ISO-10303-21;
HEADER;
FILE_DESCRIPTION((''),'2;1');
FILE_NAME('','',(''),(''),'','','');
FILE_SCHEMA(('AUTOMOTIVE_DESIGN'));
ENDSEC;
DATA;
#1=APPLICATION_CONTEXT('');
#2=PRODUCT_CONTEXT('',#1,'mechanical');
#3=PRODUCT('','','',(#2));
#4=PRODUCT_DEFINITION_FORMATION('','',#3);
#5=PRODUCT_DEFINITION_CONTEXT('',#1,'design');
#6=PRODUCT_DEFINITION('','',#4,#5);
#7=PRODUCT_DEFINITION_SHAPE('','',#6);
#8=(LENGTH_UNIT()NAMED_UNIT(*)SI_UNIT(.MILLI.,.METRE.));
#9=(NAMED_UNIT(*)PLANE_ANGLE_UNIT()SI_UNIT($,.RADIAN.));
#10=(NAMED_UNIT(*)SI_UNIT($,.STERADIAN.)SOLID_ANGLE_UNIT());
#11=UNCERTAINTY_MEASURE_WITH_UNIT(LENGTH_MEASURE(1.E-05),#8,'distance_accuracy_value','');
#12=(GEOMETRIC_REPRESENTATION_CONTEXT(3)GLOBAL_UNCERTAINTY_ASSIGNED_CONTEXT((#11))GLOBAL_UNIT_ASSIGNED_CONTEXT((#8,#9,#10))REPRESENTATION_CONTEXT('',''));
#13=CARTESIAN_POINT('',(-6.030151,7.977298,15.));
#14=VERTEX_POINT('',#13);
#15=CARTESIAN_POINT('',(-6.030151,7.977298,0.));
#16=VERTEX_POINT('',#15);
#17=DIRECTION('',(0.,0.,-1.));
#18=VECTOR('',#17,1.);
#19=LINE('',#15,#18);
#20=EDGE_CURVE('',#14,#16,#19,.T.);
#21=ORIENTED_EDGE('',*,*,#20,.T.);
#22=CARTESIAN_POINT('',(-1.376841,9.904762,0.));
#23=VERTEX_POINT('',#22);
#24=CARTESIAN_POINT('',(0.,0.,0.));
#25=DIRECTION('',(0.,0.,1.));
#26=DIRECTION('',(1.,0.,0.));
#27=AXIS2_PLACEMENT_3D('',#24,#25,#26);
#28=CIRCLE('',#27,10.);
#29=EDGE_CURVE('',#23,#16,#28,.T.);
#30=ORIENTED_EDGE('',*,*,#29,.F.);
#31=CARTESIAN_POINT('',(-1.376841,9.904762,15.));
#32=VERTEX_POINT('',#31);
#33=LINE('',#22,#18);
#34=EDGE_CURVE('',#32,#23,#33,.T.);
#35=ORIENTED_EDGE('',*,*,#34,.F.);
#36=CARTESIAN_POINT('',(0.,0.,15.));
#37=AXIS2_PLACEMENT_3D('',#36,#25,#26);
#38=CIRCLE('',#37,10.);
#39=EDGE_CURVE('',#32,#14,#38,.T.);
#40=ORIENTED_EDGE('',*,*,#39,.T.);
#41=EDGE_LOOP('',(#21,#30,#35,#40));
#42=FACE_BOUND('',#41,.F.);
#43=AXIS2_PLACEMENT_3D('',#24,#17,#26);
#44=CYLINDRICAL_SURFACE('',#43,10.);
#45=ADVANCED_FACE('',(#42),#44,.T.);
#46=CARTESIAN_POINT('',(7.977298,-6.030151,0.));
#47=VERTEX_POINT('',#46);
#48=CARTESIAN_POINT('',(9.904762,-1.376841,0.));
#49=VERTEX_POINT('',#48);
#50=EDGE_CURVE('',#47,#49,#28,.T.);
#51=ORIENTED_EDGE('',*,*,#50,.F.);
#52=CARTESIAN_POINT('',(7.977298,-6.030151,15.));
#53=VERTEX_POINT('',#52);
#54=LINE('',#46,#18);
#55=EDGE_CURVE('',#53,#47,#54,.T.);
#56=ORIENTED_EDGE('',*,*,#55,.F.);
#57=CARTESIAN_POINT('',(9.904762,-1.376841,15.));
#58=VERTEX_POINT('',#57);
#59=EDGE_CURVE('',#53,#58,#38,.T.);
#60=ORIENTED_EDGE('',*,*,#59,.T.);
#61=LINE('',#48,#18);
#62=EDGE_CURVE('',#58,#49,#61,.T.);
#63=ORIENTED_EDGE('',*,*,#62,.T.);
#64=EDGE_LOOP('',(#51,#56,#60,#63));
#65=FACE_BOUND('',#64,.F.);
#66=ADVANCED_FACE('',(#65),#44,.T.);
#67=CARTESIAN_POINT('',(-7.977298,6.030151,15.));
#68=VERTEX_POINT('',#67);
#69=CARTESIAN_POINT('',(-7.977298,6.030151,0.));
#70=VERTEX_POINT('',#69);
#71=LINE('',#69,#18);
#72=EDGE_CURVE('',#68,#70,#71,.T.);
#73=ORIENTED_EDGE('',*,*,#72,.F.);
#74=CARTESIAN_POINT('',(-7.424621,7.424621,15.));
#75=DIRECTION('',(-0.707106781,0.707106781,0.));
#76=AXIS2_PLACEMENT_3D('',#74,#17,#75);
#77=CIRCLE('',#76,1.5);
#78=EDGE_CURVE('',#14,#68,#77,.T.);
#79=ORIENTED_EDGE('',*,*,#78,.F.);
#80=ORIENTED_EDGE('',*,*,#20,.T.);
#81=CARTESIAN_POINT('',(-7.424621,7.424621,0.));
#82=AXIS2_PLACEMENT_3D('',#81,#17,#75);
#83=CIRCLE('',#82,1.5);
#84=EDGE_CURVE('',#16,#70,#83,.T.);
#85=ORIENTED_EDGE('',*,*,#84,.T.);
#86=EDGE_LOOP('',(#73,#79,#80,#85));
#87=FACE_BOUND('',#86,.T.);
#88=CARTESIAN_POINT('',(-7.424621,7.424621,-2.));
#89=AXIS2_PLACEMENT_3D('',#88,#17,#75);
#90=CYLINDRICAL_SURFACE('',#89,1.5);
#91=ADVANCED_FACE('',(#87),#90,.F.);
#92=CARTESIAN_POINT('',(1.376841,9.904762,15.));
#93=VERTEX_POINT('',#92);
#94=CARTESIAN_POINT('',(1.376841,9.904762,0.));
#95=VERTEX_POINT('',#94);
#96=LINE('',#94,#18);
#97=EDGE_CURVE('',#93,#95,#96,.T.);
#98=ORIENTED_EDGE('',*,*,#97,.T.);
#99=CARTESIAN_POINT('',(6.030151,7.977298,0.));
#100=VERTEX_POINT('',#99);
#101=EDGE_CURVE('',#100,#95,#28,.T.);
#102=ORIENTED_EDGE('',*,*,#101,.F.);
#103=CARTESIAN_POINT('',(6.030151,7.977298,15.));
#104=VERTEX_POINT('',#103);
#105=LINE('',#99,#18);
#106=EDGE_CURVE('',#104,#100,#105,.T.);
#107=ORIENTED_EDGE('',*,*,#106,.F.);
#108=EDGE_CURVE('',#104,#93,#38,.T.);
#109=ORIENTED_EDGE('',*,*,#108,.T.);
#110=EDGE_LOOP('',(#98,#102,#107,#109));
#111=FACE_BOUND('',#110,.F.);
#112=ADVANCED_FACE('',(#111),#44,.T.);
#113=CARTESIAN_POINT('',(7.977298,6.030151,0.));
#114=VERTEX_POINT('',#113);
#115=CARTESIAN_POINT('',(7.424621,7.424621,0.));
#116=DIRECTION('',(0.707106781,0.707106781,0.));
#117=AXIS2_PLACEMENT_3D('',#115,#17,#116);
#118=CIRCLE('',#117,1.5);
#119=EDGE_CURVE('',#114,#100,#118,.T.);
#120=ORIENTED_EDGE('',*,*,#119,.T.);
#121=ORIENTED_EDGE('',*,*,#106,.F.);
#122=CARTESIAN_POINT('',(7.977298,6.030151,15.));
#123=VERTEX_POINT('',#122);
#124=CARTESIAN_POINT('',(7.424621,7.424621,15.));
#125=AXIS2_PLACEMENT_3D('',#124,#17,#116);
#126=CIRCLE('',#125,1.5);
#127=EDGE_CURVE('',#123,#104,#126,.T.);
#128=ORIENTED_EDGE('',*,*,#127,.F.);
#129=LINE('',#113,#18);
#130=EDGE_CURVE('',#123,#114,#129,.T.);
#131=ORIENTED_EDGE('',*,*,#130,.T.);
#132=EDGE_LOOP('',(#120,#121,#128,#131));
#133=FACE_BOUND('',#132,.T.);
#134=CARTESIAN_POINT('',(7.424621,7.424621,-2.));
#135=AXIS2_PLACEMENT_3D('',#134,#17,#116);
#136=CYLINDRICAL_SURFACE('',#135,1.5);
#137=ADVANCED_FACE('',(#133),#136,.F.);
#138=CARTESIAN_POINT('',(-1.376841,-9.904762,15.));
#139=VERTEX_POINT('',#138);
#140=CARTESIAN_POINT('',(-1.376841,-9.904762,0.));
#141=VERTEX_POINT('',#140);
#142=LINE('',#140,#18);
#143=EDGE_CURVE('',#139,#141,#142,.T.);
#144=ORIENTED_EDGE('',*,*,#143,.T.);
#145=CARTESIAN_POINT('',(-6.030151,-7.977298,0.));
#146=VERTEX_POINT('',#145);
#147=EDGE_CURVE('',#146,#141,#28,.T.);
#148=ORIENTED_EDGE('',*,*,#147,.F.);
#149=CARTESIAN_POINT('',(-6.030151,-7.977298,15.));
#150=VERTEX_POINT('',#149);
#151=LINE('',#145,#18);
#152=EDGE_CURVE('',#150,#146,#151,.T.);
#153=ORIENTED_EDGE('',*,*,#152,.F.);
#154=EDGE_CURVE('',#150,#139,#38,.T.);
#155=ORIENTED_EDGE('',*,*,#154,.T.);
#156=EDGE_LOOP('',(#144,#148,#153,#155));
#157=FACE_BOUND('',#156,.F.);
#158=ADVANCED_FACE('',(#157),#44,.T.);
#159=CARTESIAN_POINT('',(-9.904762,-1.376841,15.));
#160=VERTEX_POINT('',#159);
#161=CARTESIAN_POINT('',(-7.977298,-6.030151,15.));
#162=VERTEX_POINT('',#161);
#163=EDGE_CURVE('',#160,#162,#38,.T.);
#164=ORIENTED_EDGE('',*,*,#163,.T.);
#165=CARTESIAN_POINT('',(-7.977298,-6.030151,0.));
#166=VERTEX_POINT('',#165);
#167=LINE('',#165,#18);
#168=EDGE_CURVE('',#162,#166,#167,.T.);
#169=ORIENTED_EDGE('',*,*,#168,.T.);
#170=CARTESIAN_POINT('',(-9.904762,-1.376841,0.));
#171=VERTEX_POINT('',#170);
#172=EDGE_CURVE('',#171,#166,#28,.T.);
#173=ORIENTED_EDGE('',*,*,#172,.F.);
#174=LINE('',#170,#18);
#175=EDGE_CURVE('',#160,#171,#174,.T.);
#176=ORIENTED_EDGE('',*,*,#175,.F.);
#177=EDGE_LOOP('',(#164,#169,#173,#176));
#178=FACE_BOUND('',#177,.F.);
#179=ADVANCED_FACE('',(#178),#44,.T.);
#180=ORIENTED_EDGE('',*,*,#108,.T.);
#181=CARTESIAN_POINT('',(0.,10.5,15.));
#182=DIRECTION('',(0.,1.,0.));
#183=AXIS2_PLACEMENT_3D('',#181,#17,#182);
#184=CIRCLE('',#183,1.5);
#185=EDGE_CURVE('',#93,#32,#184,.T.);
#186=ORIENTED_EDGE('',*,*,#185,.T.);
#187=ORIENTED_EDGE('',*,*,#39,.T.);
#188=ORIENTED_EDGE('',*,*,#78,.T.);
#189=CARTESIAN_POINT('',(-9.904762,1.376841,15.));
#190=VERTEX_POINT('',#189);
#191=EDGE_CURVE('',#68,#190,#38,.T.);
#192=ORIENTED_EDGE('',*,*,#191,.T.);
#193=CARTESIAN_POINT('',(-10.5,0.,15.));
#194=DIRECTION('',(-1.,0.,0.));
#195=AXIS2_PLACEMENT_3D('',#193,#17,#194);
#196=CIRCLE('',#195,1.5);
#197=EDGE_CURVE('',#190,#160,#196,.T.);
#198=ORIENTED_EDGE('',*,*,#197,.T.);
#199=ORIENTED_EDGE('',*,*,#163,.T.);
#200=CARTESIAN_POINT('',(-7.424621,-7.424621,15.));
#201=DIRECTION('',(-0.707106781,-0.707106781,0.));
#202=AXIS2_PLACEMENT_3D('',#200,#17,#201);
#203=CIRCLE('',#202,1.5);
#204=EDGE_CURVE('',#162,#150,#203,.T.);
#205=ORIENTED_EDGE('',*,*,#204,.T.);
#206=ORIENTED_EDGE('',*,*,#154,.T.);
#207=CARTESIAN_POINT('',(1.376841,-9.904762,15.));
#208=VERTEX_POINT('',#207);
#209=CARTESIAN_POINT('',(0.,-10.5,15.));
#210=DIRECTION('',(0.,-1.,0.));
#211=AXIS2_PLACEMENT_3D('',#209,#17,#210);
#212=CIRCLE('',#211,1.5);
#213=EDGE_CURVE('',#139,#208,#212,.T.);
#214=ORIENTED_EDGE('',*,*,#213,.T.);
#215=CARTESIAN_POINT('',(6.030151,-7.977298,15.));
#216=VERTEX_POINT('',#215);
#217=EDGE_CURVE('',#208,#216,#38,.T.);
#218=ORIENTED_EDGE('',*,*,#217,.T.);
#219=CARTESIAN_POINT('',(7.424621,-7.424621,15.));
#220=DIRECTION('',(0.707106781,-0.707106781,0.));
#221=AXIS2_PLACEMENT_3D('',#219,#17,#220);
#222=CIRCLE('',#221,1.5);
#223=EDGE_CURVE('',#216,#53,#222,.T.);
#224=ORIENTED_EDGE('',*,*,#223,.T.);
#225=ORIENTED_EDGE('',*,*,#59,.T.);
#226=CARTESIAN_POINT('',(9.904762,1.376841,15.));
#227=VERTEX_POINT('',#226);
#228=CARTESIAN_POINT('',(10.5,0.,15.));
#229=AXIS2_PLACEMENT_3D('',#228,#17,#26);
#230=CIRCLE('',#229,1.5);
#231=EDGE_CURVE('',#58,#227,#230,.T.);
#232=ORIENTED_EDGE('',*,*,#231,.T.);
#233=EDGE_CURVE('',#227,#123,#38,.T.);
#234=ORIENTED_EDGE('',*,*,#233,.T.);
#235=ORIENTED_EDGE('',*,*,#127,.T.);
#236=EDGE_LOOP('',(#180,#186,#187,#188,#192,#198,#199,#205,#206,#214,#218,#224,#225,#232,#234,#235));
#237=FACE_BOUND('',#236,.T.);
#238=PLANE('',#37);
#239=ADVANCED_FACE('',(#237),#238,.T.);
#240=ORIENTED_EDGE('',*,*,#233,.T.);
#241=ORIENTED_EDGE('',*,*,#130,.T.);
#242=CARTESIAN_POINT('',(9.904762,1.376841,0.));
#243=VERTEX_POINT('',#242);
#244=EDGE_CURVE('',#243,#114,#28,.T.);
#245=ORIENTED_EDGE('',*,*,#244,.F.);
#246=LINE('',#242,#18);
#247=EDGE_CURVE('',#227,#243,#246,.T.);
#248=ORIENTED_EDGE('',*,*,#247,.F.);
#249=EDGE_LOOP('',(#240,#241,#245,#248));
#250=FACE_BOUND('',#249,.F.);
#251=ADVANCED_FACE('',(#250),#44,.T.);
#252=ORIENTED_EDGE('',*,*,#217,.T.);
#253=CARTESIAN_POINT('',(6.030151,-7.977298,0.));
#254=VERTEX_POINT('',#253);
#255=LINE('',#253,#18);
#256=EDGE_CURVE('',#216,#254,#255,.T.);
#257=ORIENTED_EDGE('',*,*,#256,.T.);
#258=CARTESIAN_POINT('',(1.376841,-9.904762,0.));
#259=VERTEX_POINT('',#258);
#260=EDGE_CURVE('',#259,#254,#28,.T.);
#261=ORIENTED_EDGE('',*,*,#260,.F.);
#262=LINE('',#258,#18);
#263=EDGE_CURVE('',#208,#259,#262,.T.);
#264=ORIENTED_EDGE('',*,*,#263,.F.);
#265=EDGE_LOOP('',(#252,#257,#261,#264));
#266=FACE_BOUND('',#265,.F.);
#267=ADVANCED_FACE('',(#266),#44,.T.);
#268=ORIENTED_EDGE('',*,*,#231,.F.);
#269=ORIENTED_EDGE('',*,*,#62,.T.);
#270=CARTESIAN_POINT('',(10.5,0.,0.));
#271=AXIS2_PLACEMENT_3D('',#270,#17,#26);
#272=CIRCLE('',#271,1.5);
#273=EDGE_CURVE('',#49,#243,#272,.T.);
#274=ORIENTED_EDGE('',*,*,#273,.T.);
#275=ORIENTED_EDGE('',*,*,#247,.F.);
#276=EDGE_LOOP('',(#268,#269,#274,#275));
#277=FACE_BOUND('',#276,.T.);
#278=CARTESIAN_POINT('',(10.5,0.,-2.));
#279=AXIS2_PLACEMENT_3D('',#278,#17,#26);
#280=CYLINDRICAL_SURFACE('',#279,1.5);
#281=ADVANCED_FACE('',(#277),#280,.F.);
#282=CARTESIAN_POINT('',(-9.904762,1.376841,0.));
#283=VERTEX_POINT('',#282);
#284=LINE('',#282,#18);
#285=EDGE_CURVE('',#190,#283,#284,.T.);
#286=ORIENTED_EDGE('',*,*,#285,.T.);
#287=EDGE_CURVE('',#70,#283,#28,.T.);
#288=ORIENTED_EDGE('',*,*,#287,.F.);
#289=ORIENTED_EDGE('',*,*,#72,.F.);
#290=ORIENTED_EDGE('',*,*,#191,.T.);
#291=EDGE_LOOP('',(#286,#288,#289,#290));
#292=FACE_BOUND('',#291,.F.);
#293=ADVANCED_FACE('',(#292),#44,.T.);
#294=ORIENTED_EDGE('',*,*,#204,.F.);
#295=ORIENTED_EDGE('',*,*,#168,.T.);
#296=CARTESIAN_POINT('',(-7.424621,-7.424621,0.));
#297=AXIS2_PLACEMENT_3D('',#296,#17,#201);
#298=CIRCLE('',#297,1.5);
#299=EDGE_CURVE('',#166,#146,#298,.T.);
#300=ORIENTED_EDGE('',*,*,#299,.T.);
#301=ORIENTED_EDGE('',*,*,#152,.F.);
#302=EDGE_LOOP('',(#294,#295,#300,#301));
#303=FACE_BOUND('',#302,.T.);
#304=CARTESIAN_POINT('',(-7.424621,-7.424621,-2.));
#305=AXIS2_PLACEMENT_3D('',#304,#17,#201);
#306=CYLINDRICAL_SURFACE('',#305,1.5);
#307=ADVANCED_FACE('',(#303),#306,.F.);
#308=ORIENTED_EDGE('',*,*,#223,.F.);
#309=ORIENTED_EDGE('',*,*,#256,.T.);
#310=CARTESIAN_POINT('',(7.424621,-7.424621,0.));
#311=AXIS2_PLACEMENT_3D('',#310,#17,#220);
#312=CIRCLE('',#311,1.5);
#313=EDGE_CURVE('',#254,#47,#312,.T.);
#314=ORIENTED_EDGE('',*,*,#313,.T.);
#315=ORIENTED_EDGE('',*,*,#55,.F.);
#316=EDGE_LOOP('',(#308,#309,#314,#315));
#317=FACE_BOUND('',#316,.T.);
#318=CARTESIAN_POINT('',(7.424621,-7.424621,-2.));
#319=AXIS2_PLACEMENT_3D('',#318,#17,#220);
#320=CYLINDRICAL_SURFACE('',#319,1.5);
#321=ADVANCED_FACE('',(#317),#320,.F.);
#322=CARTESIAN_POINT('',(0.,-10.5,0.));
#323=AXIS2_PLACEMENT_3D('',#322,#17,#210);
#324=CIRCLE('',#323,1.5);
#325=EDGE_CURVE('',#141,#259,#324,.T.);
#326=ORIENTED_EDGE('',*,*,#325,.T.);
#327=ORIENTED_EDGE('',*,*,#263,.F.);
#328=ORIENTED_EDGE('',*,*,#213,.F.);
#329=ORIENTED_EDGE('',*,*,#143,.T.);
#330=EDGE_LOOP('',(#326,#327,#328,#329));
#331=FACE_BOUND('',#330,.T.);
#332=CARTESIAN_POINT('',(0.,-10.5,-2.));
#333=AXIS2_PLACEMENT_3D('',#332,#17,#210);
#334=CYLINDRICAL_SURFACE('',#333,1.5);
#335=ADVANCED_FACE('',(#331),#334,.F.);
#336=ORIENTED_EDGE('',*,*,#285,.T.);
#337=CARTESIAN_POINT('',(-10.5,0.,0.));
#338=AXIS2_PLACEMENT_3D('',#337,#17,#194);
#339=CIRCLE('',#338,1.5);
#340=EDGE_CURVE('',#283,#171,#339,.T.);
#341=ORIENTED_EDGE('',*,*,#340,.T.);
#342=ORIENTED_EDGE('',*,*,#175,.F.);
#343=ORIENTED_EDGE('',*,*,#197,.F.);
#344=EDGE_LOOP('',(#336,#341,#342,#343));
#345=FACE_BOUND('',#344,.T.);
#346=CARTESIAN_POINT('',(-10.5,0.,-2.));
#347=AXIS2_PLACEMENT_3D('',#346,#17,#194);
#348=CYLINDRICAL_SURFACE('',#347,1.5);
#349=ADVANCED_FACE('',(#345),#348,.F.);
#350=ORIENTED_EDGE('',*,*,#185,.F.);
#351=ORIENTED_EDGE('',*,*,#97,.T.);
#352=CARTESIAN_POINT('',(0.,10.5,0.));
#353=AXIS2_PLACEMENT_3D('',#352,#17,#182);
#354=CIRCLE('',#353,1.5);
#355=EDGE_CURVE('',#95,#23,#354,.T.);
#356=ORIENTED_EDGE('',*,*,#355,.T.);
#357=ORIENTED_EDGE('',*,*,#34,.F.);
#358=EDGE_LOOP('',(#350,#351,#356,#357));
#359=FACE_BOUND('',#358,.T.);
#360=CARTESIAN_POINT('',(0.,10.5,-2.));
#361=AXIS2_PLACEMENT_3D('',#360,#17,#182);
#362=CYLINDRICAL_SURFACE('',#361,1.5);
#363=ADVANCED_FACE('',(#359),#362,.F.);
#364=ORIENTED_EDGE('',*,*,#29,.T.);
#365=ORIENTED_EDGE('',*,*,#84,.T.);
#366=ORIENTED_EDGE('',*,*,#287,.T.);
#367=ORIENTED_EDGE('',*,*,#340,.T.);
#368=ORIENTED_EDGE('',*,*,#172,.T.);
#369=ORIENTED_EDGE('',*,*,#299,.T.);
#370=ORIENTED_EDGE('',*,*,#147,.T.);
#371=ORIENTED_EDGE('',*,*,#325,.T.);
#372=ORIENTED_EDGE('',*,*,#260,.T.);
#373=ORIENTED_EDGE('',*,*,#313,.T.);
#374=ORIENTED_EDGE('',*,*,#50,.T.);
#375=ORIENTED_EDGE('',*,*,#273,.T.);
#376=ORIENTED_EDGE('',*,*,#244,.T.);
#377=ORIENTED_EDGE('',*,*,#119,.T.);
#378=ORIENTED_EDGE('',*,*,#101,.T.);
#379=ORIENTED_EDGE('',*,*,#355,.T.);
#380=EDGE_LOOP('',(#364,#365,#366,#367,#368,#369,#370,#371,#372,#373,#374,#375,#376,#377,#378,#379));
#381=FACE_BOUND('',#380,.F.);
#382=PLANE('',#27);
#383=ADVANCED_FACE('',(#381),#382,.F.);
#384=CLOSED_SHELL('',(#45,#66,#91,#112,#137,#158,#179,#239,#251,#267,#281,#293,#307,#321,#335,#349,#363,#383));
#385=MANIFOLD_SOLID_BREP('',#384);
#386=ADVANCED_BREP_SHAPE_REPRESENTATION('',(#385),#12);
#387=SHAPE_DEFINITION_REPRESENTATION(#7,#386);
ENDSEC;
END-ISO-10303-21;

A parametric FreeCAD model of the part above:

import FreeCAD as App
import Part
import Sketcher

doc = App.newDocument("Part")
body = doc.addObject("PartDesign::Body", "Body")

# Sketch on XY plane
sketch1 = body.newObject("Sketcher::SketchObject", "Sketch")
sketch1.AttachmentSupport = (doc.getObject("XY_Plane"), [""])
sketch1.MapMode = "FlatFace"
sketch1.AttachmentOffset = App.Placement(App.Vector(0, 0, -2), App.Rotation())
sketch1.addGeometry(Part.Circle(App.Vector(10.5, 0, 0), App.Vector(0, 0, 1), 1.5), False)
sketch1.addConstraint([
    Sketcher.Constraint("PointOnObject", 0, 3, -1),
    Sketcher.Constraint("Diameter", 0, 3.0),
    Sketcher.Constraint("DistanceX", -1, 1, 0, 3, 10.5),
])
pad1 = body.newObject("PartDesign::Pad", "Pad")
pad1.Profile = sketch1
pad1.Length = 19
body2 = doc.addObject("PartDesign::Body", "Body001")
body2.AllowCompound = True
doc.recompute()

body2.BaseFeature = body
doc.recompute()

body3 = doc.addObject("PartDesign::Body", "Body002")
body3.BaseFeature = body
body3.Placement = App.Placement(App.Vector(0, 0, 0), App.Rotation(App.Vector(0, 0, 1), 45))
boolean = body2.newObject("PartDesign::Boolean", "Boolean")
boolean.Type = "Fuse"
boolean.addObjects([body3])
doc.recompute()

body4 = doc.addObject("PartDesign::Body", "Body003")
body4.BaseFeature = body
body4.Placement = App.Placement(App.Vector(0, 0, 0), App.Rotation(App.Vector(0, 0, 1), 90))
boolean2 = body2.newObject("PartDesign::Boolean", "Boolean001")
boolean2.Type = "Fuse"
boolean2.addObjects([body4])
doc.recompute()

body5 = doc.addObject("PartDesign::Body", "Body004")
body5.BaseFeature = body
body5.Placement = App.Placement(App.Vector(0, 0, 0), App.Rotation(App.Vector(0, 0, 1), 135))
boolean3 = body2.newObject("PartDesign::Boolean", "Boolean002")
boolean3.Type = "Fuse"
boolean3.addObjects([body5])
doc.recompute()

body6 = doc.addObject("PartDesign::Body", "Body005")
body6.BaseFeature = body
body6.Placement = App.Placement(App.Vector(0, 0, 0), App.Rotation(App.Vector(0, 0, 1), 180))
boolean4 = body2.newObject("PartDesign::Boolean", "Boolean003")
boolean4.Type = "Fuse"
boolean4.addObjects([body6])
doc.recompute()

body7 = doc.addObject("PartDesign::Body", "Body006")
body7.BaseFeature = body
body7.Placement = App.Placement(App.Vector(0, 0, 0), App.Rotation(App.Vector(0, 0, 1), 225))
boolean5 = body2.newObject("PartDesign::Boolean", "Boolean004")
boolean5.Type = "Fuse"
boolean5.addObjects([body7])
doc.recompute()

body8 = doc.addObject("PartDesign::Body", "Body007")
body8.BaseFeature = body
body8.Placement = App.Placement(App.Vector(0, 0, 0), App.Rotation(App.Vector(0, 0, 1), 270))
boolean6 = body2.newObject("PartDesign::Boolean", "Boolean005")
boolean6.Type = "Fuse"
boolean6.addObjects([body8])
doc.recompute()

body.Placement = App.Placement(App.Vector(0, 0, 0), App.Rotation(App.Vector(0, 0, 1), 315))
boolean7 = body2.newObject("PartDesign::Boolean", "Boolean006")
boolean7.Type = "Fuse"
boolean7.addObjects([body])
body9 = doc.addObject("PartDesign::Body", "Body008")

# Sketch on XY plane
sketch2 = body9.newObject("Sketcher::SketchObject", "Sketch001")
sketch2.AttachmentSupport = (doc.getObject("XY_Plane008"), [""])
sketch2.MapMode = "FlatFace"
sketch2.addGeometry(Part.Circle(App.Vector(0, 0, 0), App.Vector(0, 0, 1), 10), False)
sketch2.addConstraint([
    Sketcher.Constraint("Coincident", 0, 3, -1, 1),
    Sketcher.Constraint("Diameter", 0, 20.0),
])
pad2 = body9.newObject("PartDesign::Pad", "Pad001")
pad2.Profile = sketch2
pad2.Length = 15
doc.recompute()

boolean8 = body9.newObject("PartDesign::Boolean", "Boolean007")
boolean8.Type = "Cut"
boolean8.addObjects([body2])

doc.recompute()
